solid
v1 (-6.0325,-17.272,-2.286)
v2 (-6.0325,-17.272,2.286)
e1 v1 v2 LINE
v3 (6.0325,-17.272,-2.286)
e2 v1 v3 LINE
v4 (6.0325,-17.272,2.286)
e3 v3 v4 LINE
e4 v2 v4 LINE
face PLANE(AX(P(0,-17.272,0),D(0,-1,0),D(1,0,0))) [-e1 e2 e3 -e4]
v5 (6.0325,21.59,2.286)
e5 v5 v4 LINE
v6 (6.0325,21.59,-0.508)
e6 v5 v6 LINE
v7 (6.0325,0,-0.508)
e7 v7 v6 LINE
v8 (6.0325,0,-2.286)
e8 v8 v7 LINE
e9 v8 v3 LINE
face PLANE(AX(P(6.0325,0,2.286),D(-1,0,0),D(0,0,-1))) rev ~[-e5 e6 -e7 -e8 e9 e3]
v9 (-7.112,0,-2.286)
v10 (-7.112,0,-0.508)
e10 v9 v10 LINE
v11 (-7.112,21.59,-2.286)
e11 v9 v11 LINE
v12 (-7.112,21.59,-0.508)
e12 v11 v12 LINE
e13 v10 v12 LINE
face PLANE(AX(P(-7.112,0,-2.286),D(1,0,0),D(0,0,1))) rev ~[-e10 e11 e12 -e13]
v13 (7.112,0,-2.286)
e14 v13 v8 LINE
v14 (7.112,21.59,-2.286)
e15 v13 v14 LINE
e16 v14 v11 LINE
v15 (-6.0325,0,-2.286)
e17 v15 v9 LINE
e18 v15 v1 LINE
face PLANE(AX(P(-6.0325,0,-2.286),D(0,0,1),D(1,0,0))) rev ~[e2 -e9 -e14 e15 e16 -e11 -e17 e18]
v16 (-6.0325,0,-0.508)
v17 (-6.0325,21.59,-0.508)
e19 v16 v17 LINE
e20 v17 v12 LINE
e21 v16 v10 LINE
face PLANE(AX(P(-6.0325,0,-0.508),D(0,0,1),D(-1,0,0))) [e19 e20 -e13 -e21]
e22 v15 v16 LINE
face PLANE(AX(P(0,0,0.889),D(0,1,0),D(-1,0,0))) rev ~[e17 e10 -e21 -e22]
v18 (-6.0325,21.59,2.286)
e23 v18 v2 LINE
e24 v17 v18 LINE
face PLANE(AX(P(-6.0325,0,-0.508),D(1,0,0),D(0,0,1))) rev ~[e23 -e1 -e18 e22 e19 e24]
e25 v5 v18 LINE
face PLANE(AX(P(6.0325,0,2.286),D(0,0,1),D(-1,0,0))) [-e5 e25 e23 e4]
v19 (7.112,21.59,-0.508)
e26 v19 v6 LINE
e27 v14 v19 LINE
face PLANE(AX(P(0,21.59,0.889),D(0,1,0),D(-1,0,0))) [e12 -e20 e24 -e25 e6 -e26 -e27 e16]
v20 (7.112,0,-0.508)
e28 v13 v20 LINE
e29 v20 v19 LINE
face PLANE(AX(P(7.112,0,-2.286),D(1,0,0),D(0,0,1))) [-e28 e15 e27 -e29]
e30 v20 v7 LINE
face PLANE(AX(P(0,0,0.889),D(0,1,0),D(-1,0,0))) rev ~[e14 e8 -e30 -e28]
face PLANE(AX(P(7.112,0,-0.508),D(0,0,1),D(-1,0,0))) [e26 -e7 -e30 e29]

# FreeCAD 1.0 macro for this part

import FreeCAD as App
import Part
import Sketcher
Q = App.Units.Quantity


def add_polygon(sketch, points):
    """Adds a closed chain of lines whose ends are joined by coincident constraints."""
    first, n = sketch.GeometryCount, len(points)
    for a, b in zip(points, points[1:] + points[:1]):
        sketch.addGeometry(Part.LineSegment(App.Vector(*a, 0), App.Vector(*b, 0)), False)
    for i in range(n):
        sketch.addConstraint(Sketcher.Constraint("Coincident", first + i, 2, first + (i + 1) % n, 1))

doc = App.newDocument("Part")
body = doc.addObject("PartDesign::Body", "Body")

# Sketch on XZ plane
sketch1 = body.newObject("Sketcher::SketchObject", "Sketch")
sketch1.AttachmentSupport = (doc.getObject("XZ_Plane"), [""])
sketch1.MapMode = "FlatFace"
add_polygon(sketch1, [(-6.0325, 2.286), (-6.0325, -2.286), (6.0325, -2.286), (6.0325, 2.286)])  # lines 0-3
sketch1.addConstraint([
    Sketcher.Constraint("Vertical", 0),
    Sketcher.Constraint("Horizontal", 1),
    Sketcher.Constraint("Vertical", 2),
    Sketcher.Constraint("Horizontal", 3),
    Sketcher.Constraint("Symmetric", 0, 2, 2, 2, -1, 1),
    Sketcher.Constraint("DistanceY", 0, 2, 0, 1, Q("0.18 in")),
    Sketcher.Constraint("DistanceX", 1, 1, 1, 2, Q("0.475 in")),
])
pad1 = body.newObject("PartDesign::Pad", "Pad")
pad1.Profile = sketch1
pad1.Length = Q("0.68 in")

# Sketch on XZ plane
sketch2 = body.newObject("Sketcher::SketchObject", "Sketch001")
sketch2.AttachmentSupport = (doc.getObject("XZ_Plane"), [""])
sketch2.MapMode = "FlatFace"
add_polygon(sketch2, [(6.0325, 2.286), (6.0325, -0.508), (7.112, -0.508), (7.112, -2.286), (-7.112, -2.286), (-7.112, -0.508), (-6.0325, -0.508), (-6.0325, 2.286)])  # lines 0-7
sketch2.addConstraint([
    Sketcher.Constraint("Vertical", 0),
    Sketcher.Constraint("Horizontal", 1),
    Sketcher.Constraint("Vertical", 2),
    Sketcher.Constraint("Horizontal", 3),
    Sketcher.Constraint("Vertical", 4),
    Sketcher.Constraint("Horizontal", 5),
    Sketcher.Constraint("Vertical", 6),
    Sketcher.Constraint("Horizontal", 7),
    Sketcher.Constraint("Symmetric", 1, 2, 4, 2, -2),
    Sketcher.Constraint("Equal", 1, 5),
    Sketcher.Constraint("DistanceX", 3, 2, 3, 1, Q("0.56 in")),
    Sketcher.Constraint("DistanceY", 0, 2, 0, 1, Q("0.11 in")),
    Sketcher.Constraint("DistanceY", 2, 2, 2, 1, Q("0.07 in")),
    Sketcher.Constraint("DistanceX", 7, 1, 7, 2, Q("0.475 in")),
    Sketcher.Constraint("DistanceY", 0, 2, -1, 1, Q("0.02 in")),
])
pad2 = body.newObject("PartDesign::Pad", "Pad001")
pad2.Profile = sketch2
pad2.Length = Q("0.85 in")
pad2.Reversed = True

doc.recompute()
